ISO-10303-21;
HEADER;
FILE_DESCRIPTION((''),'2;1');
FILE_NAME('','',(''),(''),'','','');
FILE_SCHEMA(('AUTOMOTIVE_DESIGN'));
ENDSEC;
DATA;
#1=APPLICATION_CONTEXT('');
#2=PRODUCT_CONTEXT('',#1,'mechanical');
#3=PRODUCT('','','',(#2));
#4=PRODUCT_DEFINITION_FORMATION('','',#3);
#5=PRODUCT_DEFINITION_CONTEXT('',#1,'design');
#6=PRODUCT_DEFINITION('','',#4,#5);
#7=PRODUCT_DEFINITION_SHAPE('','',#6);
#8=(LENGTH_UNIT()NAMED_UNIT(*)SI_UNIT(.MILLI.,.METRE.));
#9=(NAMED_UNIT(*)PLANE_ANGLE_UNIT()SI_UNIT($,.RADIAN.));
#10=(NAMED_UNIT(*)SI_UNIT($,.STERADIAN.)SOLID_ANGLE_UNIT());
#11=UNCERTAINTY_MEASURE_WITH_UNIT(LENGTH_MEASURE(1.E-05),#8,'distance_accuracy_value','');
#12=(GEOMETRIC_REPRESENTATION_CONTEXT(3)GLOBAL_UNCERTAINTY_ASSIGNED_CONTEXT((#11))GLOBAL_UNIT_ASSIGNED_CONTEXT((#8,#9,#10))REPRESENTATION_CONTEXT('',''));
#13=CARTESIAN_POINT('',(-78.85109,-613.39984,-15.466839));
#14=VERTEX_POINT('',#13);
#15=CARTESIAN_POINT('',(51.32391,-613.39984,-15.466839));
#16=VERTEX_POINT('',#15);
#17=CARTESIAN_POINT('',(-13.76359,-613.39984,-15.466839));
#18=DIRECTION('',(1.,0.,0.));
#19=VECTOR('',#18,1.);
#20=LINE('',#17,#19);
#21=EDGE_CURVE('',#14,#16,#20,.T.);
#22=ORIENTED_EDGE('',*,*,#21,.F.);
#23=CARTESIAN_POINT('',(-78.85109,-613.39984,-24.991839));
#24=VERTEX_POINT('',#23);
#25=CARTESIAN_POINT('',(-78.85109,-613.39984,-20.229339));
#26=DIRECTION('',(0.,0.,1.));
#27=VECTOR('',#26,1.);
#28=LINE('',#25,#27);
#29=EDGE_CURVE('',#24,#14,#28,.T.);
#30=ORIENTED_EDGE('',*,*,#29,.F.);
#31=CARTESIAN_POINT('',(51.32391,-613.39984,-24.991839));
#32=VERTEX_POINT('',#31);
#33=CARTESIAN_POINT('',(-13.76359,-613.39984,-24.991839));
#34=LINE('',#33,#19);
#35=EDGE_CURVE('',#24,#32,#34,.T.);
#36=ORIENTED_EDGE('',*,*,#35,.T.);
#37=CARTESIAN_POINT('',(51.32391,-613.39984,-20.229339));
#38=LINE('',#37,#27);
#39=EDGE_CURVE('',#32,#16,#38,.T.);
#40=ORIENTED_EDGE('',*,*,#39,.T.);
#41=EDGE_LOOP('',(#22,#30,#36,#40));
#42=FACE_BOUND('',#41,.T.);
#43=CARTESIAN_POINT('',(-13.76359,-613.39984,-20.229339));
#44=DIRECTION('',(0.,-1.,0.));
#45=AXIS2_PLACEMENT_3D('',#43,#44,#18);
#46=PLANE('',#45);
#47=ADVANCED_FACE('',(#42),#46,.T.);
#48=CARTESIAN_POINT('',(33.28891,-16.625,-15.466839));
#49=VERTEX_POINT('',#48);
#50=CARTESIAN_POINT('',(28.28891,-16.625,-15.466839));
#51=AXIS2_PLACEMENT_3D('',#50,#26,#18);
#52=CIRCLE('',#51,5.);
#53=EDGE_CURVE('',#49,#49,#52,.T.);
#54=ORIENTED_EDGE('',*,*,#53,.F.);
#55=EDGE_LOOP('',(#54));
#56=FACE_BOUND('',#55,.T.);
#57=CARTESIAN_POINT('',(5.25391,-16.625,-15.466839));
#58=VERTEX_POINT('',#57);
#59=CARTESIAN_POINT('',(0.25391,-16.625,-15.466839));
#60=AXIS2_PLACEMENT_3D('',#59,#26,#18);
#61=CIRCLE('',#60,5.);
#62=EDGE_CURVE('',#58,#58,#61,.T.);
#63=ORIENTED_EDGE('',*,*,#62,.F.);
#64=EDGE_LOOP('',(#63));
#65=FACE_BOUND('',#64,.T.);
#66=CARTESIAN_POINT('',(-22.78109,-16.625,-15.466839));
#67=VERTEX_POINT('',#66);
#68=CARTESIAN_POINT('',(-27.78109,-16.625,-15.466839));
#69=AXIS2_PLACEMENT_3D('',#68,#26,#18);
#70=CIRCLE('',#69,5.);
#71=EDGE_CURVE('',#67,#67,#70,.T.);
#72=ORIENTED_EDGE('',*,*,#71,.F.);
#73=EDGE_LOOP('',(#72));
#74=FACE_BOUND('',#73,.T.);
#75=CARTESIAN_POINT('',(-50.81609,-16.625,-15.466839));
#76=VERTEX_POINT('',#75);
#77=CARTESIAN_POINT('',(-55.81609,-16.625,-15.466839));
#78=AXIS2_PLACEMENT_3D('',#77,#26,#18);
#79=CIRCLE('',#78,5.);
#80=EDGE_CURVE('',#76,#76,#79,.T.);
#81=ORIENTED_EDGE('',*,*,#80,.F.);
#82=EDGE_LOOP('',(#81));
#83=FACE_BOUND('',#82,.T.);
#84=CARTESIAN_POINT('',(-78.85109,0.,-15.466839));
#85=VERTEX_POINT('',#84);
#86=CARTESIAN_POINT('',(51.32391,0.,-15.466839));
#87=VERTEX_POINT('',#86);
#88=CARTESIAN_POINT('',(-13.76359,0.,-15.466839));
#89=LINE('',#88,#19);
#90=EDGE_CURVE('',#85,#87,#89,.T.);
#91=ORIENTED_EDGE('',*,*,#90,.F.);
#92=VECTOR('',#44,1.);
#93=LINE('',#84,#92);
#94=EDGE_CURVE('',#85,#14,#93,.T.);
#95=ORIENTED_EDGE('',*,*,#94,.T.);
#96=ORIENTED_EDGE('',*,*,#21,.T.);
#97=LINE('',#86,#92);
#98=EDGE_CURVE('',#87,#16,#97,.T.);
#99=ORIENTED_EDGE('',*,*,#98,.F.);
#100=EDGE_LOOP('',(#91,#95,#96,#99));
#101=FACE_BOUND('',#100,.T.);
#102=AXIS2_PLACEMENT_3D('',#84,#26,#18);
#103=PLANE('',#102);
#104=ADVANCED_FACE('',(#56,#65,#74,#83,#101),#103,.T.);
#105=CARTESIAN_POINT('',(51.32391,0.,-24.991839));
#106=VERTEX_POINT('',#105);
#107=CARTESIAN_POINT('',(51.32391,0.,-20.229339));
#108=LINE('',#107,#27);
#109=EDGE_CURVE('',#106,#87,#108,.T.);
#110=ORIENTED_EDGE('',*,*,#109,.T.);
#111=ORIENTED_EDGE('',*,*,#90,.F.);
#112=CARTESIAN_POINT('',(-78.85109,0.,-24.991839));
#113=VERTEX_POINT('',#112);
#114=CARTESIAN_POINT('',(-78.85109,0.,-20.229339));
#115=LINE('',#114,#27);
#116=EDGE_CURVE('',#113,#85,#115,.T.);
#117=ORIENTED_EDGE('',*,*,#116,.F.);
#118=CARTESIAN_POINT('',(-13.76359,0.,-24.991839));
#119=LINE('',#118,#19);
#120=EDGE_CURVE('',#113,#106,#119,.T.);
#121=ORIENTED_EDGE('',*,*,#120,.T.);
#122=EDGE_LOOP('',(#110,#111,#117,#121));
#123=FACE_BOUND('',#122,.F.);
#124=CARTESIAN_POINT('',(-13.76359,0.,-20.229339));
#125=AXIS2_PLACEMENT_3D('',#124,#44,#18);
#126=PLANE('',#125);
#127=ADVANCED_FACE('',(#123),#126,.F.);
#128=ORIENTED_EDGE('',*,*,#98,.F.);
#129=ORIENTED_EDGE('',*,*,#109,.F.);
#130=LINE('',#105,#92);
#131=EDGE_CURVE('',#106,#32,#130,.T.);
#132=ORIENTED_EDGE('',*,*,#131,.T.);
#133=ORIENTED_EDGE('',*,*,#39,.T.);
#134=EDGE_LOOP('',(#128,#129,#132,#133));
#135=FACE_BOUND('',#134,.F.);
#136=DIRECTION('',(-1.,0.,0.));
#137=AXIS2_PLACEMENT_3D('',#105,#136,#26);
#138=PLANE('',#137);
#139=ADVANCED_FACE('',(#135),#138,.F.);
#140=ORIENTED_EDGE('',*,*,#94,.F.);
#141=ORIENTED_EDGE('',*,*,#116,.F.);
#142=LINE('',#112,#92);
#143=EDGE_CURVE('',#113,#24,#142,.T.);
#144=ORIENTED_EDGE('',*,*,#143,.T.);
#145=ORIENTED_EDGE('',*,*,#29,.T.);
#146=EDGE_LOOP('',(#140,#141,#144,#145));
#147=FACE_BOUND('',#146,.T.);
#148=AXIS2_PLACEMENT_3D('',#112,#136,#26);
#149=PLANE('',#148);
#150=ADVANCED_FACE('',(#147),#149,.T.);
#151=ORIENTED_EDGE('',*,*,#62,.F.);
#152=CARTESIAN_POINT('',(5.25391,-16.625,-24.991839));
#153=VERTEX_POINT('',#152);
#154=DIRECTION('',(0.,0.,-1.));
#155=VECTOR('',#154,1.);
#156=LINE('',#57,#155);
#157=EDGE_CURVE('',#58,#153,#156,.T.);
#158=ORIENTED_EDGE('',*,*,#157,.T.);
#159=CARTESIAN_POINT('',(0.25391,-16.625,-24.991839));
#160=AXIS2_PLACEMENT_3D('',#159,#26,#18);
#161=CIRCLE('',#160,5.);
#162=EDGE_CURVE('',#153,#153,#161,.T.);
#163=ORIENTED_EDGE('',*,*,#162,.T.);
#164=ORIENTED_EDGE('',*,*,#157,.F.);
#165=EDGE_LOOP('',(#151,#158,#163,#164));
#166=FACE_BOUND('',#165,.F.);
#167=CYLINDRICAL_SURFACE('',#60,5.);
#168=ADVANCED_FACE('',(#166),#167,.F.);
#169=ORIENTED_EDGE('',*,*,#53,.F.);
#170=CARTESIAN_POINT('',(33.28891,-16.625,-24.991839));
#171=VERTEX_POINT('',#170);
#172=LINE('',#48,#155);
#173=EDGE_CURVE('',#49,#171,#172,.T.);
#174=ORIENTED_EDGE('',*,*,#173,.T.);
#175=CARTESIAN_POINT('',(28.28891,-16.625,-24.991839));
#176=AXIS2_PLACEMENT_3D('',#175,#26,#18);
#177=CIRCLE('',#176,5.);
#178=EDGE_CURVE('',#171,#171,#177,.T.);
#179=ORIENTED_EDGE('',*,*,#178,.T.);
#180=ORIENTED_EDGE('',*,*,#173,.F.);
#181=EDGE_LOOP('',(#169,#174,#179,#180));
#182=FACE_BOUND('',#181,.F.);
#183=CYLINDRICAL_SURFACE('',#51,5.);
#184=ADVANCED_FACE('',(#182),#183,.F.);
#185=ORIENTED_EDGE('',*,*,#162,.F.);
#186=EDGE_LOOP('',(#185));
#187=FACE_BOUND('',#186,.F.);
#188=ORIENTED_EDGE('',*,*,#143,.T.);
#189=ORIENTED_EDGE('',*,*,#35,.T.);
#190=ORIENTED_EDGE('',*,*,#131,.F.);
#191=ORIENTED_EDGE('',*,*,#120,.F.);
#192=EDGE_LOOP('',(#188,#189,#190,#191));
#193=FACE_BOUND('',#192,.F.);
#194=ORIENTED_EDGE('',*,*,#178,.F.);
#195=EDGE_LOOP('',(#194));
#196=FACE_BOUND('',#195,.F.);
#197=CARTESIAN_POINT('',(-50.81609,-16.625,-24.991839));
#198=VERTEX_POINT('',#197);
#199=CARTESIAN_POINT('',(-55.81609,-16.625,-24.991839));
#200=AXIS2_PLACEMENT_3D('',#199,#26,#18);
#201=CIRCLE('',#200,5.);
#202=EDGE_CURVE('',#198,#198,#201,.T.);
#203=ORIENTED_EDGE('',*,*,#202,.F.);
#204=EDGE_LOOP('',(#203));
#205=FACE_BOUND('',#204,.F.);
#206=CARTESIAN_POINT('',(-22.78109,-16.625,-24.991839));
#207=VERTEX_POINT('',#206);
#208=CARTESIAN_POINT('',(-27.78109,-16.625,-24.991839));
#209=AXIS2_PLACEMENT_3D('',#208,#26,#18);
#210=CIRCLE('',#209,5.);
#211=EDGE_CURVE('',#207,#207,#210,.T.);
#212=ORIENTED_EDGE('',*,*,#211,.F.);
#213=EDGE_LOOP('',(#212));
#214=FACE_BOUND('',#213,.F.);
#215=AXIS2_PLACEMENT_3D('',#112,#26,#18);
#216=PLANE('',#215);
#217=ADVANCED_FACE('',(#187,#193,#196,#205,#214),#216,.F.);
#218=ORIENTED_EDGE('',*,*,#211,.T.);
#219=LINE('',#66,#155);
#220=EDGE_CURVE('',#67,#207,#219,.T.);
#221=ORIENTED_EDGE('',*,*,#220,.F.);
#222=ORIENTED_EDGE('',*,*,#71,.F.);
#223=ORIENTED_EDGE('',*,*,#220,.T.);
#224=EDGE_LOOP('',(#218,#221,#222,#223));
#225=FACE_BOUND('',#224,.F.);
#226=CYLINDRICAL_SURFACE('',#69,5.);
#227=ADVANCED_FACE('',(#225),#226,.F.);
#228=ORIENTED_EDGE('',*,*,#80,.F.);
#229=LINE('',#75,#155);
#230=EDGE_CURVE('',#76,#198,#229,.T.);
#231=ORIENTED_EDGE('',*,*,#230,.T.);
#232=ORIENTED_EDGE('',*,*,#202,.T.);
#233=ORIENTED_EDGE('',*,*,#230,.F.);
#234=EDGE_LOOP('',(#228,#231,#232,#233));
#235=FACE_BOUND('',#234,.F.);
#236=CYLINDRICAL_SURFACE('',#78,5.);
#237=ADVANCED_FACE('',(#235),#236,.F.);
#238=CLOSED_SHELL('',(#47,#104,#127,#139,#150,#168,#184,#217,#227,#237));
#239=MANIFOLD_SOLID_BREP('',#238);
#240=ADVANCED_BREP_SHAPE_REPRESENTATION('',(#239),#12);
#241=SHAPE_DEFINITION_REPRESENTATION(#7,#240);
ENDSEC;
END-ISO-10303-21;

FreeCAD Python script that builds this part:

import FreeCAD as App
import Part
import Sketcher

V = App.Vector

doc = App.newDocument("Part")
body = doc.addObject("PartDesign::Body", "Body")

sketch1 = body.newObject("Sketcher::SketchObject", "Sketch")
sketch1.AttachmentSupport = (doc.getObject("XZ_Plane"), [""])
sketch1.MapMode = "FlatFace"
sketch1.addGeometry([
    Part.LineSegment(V(-78.85109, -15.466839, 0), V(-78.85109, -24.991839, 0)),
    Part.LineSegment(V(-78.85109, -24.991839, 0), V(51.32391, -24.991839, 0)),
    Part.LineSegment(V(51.32391, -24.991839, 0), V(51.32391, -15.466839, 0)),
    Part.LineSegment(V(51.32391, -15.466839, 0), V(-78.85109, -15.466839, 0)),
], False)
sketch1.addConstraint([
    Sketcher.Constraint("Coincident", 0, 2, 1, 1),
    Sketcher.Constraint("Coincident", 1, 2, 2, 1),
    Sketcher.Constraint("Coincident", 2, 2, 3, 1),
    Sketcher.Constraint("Coincident", 3, 2, 0, 1),
    Sketcher.Constraint("Vertical", 0),
    Sketcher.Constraint("Horizontal", 1),
    Sketcher.Constraint("Vertical", 2),
    Sketcher.Constraint("Horizontal", 3),
    Sketcher.Constraint("DistanceX", 1, 1, 1, 2, 130.175),
    Sketcher.Constraint("DistanceY", 0, 2, 0, 1, 9.525),
    Sketcher.Constraint("DistanceX", 0, 2, -1, 1, 78.85109),
    Sketcher.Constraint("DistanceY", 0, 2, -1, 1, 24.991839),
])
pad1 = body.newObject("PartDesign::Pad", "Pad")
pad1.Profile = sketch1
pad1.Length = 613.39984

sketch2 = body.newObject("Sketcher::SketchObject", "Sketch001")
sketch2.AttachmentSupport = (doc.getObject("XY_Plane"), [""])
sketch2.MapMode = "FlatFace"
sketch2.AttachmentOffset = App.Placement(V(0, 0, -15.466839), App.Rotation())
sketch2.addGeometry([
    Part.Circle(V(-55.81609, -16.625, 0), V(0, 0, 1), 5),
    Part.Circle(V(-27.78109, -16.625, 0), V(0, 0, 1), 5),
    Part.Circle(V(0.25391, -16.625, 0), V(0, 0, 1), 5),
    Part.Circle(V(28.28891, -16.625, 0), V(0, 0, 1), 5),
], False)
sketch2.addConstraint([
    Sketcher.Constraint("Equal", 0, 1),
    Sketcher.Constraint("Equal", 1, 2),
    Sketcher.Constraint("Equal", 2, 3),
    Sketcher.Constraint("Horizontal", 0, 3, 1, 3),
    Sketcher.Constraint("Horizontal", 1, 3, 2, 3),
    Sketcher.Constraint("Horizontal", 2, 3, 3, 3),
    Sketcher.Constraint("Diameter", 0, 10.0),
    Sketcher.Constraint("DistanceX", 0, 3, 2, 3, 56.07),
    Sketcher.Constraint("DistanceX", 1, 3, 3, 3, 56.07),
    Sketcher.Constraint("DistanceY", 0, 3, -1, 1, 16.625),
    Sketcher.Constraint("DistanceX", 0, 3, 1, 3, 28.035),
    Sketcher.Constraint("DistanceX", 0, 3, -1, 1, 55.81609),
])
pocket1 = body.newObject("PartDesign::Pocket", "Pocket")
pocket1.Profile = sketch2
pocket1.Length = 25

doc.recompute()
